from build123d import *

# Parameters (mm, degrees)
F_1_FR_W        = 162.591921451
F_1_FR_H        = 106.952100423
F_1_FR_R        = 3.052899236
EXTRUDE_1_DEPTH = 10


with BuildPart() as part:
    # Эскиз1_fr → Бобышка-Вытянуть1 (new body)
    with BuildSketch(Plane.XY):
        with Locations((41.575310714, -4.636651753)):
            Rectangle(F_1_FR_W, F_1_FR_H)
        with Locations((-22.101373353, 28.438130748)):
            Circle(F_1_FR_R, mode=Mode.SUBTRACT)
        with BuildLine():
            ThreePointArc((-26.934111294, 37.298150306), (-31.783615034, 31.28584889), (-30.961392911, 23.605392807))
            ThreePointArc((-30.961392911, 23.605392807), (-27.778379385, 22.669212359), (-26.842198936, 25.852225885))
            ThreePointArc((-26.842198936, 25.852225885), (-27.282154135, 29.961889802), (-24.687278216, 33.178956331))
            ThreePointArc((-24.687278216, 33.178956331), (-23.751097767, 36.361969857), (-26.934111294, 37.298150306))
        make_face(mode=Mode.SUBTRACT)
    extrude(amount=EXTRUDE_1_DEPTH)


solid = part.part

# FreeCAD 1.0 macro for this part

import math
import FreeCAD as App
import Part
import Sketcher

V = App.Vector

doc = App.newDocument("Part")
body = doc.addObject("PartDesign::Body", "Body")

# Sketch on XY plane
sketch1 = body.newObject("Sketcher::SketchObject", "Sketch")
sketch1.AttachmentSupport = (doc.getObject("XY_Plane"), [""])
sketch1.MapMode = "FlatFace"
sketch1.addGeometry([
    Part.LineSegment(V(-39.72065, 48.839398, 0), V(-39.72065, -58.112702, 0)),  # 0
    Part.LineSegment(V(-39.72065, -58.112702, 0), V(122.871271, -58.112702, 0)),  # 1
    Part.LineSegment(V(122.871271, -58.112702, 0), V(122.871271, 48.839398, 0)),  # 2
    Part.LineSegment(V(122.871271, 48.839398, 0), V(-39.72065, 48.839398, 0)),  # 3
    Part.Circle(V(-22.101373, 28.438131, 0), V(0, 0, 1), 3.052899),  # 4
    Part.ArcOfCircle(Part.Circle(V(-22.101373, 28.438131, 0), V(0, 0, 1), 10.092339), math.radians(118.61046), math.radians(208.61046)),  # 5
    Part.ArcOfCircle(Part.Circle(V(-25.810695, 35.238553, 0), V(0, 0, 1), 2.346061), math.radians(-61.38954), math.radians(118.61046)),  # 6
    Part.ArcOfCircle(Part.Circle(V(-22.101373, 28.438131, 0), V(0, 0, 1), 5.400216), math.radians(118.61046), math.radians(208.61046)),  # 7
    Part.ArcOfCircle(Part.Circle(V(-28.901796, 24.728809, 0), V(0, 0, 1), 2.346061), math.radians(-151.38954), math.radians(28.61046)),  # 8
], False)
sketch1.addConstraint([
    Sketcher.Constraint("Coincident", 0, 2, 1, 1),
    Sketcher.Constraint("Coincident", 1, 2, 2, 1),
    Sketcher.Constraint("Coincident", 2, 2, 3, 1),
    Sketcher.Constraint("Coincident", 3, 2, 0, 1),
    Sketcher.Constraint("Tangent", 5, 1, 6, 2),
    Sketcher.Constraint("Tangent", 6, 1, 7, 1),
    Sketcher.Constraint("Tangent", 7, 2, 8, 2),
    Sketcher.Constraint("Tangent", 8, 1, 5, 2),
    Sketcher.Constraint("Vertical", 0),
    Sketcher.Constraint("Horizontal", 1),
    Sketcher.Constraint("Vertical", 2),
    Sketcher.Constraint("Horizontal", 3),
    Sketcher.Constraint("Coincident", 5, 3, 4, 3),
    Sketcher.Constraint("Coincident", 7, 3, 4, 3),
    Sketcher.Constraint("Diameter", 4, 6.105798),
    Sketcher.Constraint("Radius", 5, 10.092339),
    Sketcher.Constraint("Radius", 6, 2.346061),
    Sketcher.Constraint("DistanceY", 0, 2, 0, 1, 106.9521),
    Sketcher.Constraint("DistanceX", 1, 1, 1, 2, 162.591921),
    Sketcher.Constraint("DistanceY", 0, 2, -1, 1, 58.112702),
    Sketcher.Constraint("DistanceX", 7, 2, -1, 1, 26.842199),
    Sketcher.Constraint("DistanceX", 8, 3, 6, 3, 3.091101),
    Sketcher.Constraint("DistanceY", -1, 1, 4, 3, 28.438131),
    Sketcher.Constraint("DistanceY", -1, 1, 8, 3, 24.728809),
    Sketcher.Constraint("DistanceX", 0, 2, -1, 1, 39.72065),
])
pad1 = body.newObject("PartDesign::Pad", "Pad")
pad1.Profile = sketch1
pad1.Length = 10

doc.recompute()
